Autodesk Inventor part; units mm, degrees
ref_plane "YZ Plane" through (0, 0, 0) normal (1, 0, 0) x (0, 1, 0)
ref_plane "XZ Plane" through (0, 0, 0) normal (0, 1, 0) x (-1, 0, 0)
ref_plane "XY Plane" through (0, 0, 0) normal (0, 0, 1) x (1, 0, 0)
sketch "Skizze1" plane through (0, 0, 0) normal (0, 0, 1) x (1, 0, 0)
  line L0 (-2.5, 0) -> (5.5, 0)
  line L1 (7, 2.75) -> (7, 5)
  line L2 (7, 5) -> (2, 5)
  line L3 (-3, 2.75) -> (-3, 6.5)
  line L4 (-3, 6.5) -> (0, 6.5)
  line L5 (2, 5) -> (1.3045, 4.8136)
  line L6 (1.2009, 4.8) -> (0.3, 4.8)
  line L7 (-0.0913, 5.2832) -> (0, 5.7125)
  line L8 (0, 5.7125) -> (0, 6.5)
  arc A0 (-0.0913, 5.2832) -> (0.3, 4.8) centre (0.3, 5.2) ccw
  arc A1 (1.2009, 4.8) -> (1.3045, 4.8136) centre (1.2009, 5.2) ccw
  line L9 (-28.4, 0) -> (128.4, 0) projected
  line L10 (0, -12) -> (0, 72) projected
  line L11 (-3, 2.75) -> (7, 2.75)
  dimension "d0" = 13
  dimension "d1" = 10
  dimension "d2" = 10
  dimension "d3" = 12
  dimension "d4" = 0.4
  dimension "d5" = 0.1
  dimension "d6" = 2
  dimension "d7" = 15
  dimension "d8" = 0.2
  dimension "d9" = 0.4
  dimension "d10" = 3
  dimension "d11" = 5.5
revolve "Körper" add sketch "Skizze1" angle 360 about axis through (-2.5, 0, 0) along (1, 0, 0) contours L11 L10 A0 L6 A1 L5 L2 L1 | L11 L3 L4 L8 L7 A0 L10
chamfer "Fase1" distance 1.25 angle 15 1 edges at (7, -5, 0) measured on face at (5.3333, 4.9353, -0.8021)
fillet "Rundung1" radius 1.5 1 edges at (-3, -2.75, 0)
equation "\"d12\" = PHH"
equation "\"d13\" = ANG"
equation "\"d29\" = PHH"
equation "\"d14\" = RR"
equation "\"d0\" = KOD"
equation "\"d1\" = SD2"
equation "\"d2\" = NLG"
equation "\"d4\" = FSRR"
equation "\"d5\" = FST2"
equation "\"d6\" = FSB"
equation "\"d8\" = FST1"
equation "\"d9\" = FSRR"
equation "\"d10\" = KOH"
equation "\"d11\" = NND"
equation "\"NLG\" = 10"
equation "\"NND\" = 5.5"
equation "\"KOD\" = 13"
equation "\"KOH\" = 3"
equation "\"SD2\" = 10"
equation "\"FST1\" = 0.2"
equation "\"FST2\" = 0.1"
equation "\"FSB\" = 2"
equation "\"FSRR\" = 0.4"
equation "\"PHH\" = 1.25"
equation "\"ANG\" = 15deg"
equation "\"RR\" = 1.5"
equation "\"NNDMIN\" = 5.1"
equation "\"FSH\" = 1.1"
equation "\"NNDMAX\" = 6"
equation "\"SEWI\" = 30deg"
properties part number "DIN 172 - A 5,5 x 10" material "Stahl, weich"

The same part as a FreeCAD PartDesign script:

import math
import FreeCAD as App
import Part
import Sketcher
from FreeCAD import Vector


def edges_at(feature, points):
    """Names of the edges that pass closest to the given points."""
    edges = feature.Shape.Edges
    near = lambda p: min(range(len(edges)), key=lambda i: edges[i].distToShape(Part.Vertex(*p))[0])
    return sorted({f"Edge{near(p) + 1}" for p in points})

doc = App.newDocument("Part")
body = doc.addObject("PartDesign::Body", "Body")

# Sketch on XY plane
sketch1 = doc.addObject("Sketcher::SketchObject", "Sketch")
body.addObject(sketch1)
sketch1.AttachmentSupport = (doc.XY_Plane, [""])
sketch1.MapMode = "FlatFace"
sketch1.addGeometry(Part.LineSegment(Vector(7, 2.75, 0), Vector(7, 5, 0)), False)
sketch1.addGeometry(Part.LineSegment(Vector(7, 5, 0), Vector(2, 5, 0)), False)
sketch1.addGeometry(Part.LineSegment(Vector(2, 5, 0), Vector(1.3, 4.81, 0)), False)
sketch1.addGeometry(Part.ArcOfCircle(Part.Circle(Vector(1.2, 5.2, 0), Vector(0, 0, 1), 0.4), math.radians(-89.97), math.radians(-75.07)), False)
sketch1.addGeometry(Part.LineSegment(Vector(1.2, 4.8, 0), Vector(0.3, 4.8, 0)), False)
sketch1.addGeometry(Part.ArcOfCircle(Part.Circle(Vector(0.3, 5.2, 0), Vector(0, 0, 1), 0.4), math.radians(168), math.radians(270)), False)
sketch1.addGeometry(Part.LineSegment(Vector(-0.09, 5.28, 0), Vector(0, 5.71, 0)), False)
sketch1.addGeometry(Part.LineSegment(Vector(0, 5.71, 0), Vector(0, 6.5, 0)), False)
sketch1.addGeometry(Part.LineSegment(Vector(0, 6.5, 0), Vector(-3, 6.5, 0)), False)
sketch1.addGeometry(Part.LineSegment(Vector(-3, 6.5, 0), Vector(-3, 2.75, 0)), False)
sketch1.addGeometry(Part.LineSegment(Vector(-3, 2.75, 0), Vector(7, 2.75, 0)), False)
sketch1.addConstraint(Sketcher.Constraint("Coincident", 0, 2, 1, 1))
sketch1.addConstraint(Sketcher.Constraint("Coincident", 1, 2, 2, 1))
sketch1.addConstraint(Sketcher.Constraint("Coincident", 2, 2, 3, 2))
sketch1.addConstraint(Sketcher.Constraint("Tangent", 3, 1, 4, 1))
sketch1.addConstraint(Sketcher.Constraint("Tangent", 4, 2, 5, 2))
sketch1.addConstraint(Sketcher.Constraint("Tangent", 5, 1, 6, 1))
sketch1.addConstraint(Sketcher.Constraint("Coincident", 6, 2, 7, 1))
sketch1.addConstraint(Sketcher.Constraint("Coincident", 7, 2, 8, 1))
sketch1.addConstraint(Sketcher.Constraint("Coincident", 8, 2, 9, 1))
sketch1.addConstraint(Sketcher.Constraint("Coincident", 9, 2, 10, 1))
sketch1.addConstraint(Sketcher.Constraint("Coincident", 10, 2, 0, 1))
sketch1.addConstraint(Sketcher.Constraint("Vertical", 0))
sketch1.addConstraint(Sketcher.Constraint("Horizontal", 1))
sketch1.addConstraint(Sketcher.Constraint("Horizontal", 4))
sketch1.addConstraint(Sketcher.Constraint("Vertical", 7))
sketch1.addConstraint(Sketcher.Constraint("Horizontal", 8))
sketch1.addConstraint(Sketcher.Constraint("Vertical", 9))
sketch1.addConstraint(Sketcher.Constraint("Horizontal", 10))
sketch1.addConstraint(Sketcher.Constraint("PointOnObject", 6, 2, -2))
sketch1.addConstraint(Sketcher.Constraint("Radius", 5, 0.4))
sketch1.addConstraint(Sketcher.Constraint("DistanceX", 8, 2, 8, 1, 3.0))
sketch1.addConstraint(Sketcher.Constraint("DistanceX", 10, 1, 10, 2, 10.0))
sketch1.addConstraint(Sketcher.Constraint("DistanceX", -1, 1, 1, 2, 2.0))
sketch1.addConstraint(Sketcher.Constraint("DistanceY", 0, 2, 5, 3, 0.2))
sketch1.addConstraint(Sketcher.Constraint("DistanceY", -1, 1, 0, 2, 5.0))
sketch1.addConstraint(Sketcher.Constraint("DistanceY", 0, 1, 0, 2, 2.25))
sketch1.addConstraint(Sketcher.Constraint("DistanceY", 9, 2, 9, 1, 3.75))
sketch1.addConstraint(Sketcher.Constraint("DistanceX", -1, 1, 5, 3, 0.3))
sketch1.addConstraint(Sketcher.Constraint("Radius", 3, 0.4028))
sketch1.addConstraint(Sketcher.Constraint("Distance", 2, 0.72))
sketch1.addConstraint(Sketcher.Constraint("DistanceX", 4, 2, 4, 1, 0.901))
sketch1.addConstraint(Sketcher.Constraint("Distance", 6, 0.439))
revolution = doc.addObject("PartDesign::Revolution", "Revolution")
body.addObject(revolution)
revolution.Profile = sketch1
revolution.ReferenceAxis = (sketch1, ["H_Axis"])
revolution.Angle = 360
doc.recompute()

chamfer = doc.addObject("PartDesign::Chamfer", "Chamfer")
body.addObject(chamfer)
chamfer.Base = (revolution, edges_at(revolution, [(7, -5, 0)]))
chamfer.ChamferType = "Distance and Angle"
chamfer.Size = 1.25
chamfer.Angle = 15
chamfer.FlipDirection = True
doc.recompute()

fillet = doc.addObject("PartDesign::Fillet", "Fillet")
body.addObject(fillet)
fillet.Base = (chamfer, edges_at(chamfer, [(-3, -2.75, 0)]))
fillet.Radius = 1.5

doc.recompute()
